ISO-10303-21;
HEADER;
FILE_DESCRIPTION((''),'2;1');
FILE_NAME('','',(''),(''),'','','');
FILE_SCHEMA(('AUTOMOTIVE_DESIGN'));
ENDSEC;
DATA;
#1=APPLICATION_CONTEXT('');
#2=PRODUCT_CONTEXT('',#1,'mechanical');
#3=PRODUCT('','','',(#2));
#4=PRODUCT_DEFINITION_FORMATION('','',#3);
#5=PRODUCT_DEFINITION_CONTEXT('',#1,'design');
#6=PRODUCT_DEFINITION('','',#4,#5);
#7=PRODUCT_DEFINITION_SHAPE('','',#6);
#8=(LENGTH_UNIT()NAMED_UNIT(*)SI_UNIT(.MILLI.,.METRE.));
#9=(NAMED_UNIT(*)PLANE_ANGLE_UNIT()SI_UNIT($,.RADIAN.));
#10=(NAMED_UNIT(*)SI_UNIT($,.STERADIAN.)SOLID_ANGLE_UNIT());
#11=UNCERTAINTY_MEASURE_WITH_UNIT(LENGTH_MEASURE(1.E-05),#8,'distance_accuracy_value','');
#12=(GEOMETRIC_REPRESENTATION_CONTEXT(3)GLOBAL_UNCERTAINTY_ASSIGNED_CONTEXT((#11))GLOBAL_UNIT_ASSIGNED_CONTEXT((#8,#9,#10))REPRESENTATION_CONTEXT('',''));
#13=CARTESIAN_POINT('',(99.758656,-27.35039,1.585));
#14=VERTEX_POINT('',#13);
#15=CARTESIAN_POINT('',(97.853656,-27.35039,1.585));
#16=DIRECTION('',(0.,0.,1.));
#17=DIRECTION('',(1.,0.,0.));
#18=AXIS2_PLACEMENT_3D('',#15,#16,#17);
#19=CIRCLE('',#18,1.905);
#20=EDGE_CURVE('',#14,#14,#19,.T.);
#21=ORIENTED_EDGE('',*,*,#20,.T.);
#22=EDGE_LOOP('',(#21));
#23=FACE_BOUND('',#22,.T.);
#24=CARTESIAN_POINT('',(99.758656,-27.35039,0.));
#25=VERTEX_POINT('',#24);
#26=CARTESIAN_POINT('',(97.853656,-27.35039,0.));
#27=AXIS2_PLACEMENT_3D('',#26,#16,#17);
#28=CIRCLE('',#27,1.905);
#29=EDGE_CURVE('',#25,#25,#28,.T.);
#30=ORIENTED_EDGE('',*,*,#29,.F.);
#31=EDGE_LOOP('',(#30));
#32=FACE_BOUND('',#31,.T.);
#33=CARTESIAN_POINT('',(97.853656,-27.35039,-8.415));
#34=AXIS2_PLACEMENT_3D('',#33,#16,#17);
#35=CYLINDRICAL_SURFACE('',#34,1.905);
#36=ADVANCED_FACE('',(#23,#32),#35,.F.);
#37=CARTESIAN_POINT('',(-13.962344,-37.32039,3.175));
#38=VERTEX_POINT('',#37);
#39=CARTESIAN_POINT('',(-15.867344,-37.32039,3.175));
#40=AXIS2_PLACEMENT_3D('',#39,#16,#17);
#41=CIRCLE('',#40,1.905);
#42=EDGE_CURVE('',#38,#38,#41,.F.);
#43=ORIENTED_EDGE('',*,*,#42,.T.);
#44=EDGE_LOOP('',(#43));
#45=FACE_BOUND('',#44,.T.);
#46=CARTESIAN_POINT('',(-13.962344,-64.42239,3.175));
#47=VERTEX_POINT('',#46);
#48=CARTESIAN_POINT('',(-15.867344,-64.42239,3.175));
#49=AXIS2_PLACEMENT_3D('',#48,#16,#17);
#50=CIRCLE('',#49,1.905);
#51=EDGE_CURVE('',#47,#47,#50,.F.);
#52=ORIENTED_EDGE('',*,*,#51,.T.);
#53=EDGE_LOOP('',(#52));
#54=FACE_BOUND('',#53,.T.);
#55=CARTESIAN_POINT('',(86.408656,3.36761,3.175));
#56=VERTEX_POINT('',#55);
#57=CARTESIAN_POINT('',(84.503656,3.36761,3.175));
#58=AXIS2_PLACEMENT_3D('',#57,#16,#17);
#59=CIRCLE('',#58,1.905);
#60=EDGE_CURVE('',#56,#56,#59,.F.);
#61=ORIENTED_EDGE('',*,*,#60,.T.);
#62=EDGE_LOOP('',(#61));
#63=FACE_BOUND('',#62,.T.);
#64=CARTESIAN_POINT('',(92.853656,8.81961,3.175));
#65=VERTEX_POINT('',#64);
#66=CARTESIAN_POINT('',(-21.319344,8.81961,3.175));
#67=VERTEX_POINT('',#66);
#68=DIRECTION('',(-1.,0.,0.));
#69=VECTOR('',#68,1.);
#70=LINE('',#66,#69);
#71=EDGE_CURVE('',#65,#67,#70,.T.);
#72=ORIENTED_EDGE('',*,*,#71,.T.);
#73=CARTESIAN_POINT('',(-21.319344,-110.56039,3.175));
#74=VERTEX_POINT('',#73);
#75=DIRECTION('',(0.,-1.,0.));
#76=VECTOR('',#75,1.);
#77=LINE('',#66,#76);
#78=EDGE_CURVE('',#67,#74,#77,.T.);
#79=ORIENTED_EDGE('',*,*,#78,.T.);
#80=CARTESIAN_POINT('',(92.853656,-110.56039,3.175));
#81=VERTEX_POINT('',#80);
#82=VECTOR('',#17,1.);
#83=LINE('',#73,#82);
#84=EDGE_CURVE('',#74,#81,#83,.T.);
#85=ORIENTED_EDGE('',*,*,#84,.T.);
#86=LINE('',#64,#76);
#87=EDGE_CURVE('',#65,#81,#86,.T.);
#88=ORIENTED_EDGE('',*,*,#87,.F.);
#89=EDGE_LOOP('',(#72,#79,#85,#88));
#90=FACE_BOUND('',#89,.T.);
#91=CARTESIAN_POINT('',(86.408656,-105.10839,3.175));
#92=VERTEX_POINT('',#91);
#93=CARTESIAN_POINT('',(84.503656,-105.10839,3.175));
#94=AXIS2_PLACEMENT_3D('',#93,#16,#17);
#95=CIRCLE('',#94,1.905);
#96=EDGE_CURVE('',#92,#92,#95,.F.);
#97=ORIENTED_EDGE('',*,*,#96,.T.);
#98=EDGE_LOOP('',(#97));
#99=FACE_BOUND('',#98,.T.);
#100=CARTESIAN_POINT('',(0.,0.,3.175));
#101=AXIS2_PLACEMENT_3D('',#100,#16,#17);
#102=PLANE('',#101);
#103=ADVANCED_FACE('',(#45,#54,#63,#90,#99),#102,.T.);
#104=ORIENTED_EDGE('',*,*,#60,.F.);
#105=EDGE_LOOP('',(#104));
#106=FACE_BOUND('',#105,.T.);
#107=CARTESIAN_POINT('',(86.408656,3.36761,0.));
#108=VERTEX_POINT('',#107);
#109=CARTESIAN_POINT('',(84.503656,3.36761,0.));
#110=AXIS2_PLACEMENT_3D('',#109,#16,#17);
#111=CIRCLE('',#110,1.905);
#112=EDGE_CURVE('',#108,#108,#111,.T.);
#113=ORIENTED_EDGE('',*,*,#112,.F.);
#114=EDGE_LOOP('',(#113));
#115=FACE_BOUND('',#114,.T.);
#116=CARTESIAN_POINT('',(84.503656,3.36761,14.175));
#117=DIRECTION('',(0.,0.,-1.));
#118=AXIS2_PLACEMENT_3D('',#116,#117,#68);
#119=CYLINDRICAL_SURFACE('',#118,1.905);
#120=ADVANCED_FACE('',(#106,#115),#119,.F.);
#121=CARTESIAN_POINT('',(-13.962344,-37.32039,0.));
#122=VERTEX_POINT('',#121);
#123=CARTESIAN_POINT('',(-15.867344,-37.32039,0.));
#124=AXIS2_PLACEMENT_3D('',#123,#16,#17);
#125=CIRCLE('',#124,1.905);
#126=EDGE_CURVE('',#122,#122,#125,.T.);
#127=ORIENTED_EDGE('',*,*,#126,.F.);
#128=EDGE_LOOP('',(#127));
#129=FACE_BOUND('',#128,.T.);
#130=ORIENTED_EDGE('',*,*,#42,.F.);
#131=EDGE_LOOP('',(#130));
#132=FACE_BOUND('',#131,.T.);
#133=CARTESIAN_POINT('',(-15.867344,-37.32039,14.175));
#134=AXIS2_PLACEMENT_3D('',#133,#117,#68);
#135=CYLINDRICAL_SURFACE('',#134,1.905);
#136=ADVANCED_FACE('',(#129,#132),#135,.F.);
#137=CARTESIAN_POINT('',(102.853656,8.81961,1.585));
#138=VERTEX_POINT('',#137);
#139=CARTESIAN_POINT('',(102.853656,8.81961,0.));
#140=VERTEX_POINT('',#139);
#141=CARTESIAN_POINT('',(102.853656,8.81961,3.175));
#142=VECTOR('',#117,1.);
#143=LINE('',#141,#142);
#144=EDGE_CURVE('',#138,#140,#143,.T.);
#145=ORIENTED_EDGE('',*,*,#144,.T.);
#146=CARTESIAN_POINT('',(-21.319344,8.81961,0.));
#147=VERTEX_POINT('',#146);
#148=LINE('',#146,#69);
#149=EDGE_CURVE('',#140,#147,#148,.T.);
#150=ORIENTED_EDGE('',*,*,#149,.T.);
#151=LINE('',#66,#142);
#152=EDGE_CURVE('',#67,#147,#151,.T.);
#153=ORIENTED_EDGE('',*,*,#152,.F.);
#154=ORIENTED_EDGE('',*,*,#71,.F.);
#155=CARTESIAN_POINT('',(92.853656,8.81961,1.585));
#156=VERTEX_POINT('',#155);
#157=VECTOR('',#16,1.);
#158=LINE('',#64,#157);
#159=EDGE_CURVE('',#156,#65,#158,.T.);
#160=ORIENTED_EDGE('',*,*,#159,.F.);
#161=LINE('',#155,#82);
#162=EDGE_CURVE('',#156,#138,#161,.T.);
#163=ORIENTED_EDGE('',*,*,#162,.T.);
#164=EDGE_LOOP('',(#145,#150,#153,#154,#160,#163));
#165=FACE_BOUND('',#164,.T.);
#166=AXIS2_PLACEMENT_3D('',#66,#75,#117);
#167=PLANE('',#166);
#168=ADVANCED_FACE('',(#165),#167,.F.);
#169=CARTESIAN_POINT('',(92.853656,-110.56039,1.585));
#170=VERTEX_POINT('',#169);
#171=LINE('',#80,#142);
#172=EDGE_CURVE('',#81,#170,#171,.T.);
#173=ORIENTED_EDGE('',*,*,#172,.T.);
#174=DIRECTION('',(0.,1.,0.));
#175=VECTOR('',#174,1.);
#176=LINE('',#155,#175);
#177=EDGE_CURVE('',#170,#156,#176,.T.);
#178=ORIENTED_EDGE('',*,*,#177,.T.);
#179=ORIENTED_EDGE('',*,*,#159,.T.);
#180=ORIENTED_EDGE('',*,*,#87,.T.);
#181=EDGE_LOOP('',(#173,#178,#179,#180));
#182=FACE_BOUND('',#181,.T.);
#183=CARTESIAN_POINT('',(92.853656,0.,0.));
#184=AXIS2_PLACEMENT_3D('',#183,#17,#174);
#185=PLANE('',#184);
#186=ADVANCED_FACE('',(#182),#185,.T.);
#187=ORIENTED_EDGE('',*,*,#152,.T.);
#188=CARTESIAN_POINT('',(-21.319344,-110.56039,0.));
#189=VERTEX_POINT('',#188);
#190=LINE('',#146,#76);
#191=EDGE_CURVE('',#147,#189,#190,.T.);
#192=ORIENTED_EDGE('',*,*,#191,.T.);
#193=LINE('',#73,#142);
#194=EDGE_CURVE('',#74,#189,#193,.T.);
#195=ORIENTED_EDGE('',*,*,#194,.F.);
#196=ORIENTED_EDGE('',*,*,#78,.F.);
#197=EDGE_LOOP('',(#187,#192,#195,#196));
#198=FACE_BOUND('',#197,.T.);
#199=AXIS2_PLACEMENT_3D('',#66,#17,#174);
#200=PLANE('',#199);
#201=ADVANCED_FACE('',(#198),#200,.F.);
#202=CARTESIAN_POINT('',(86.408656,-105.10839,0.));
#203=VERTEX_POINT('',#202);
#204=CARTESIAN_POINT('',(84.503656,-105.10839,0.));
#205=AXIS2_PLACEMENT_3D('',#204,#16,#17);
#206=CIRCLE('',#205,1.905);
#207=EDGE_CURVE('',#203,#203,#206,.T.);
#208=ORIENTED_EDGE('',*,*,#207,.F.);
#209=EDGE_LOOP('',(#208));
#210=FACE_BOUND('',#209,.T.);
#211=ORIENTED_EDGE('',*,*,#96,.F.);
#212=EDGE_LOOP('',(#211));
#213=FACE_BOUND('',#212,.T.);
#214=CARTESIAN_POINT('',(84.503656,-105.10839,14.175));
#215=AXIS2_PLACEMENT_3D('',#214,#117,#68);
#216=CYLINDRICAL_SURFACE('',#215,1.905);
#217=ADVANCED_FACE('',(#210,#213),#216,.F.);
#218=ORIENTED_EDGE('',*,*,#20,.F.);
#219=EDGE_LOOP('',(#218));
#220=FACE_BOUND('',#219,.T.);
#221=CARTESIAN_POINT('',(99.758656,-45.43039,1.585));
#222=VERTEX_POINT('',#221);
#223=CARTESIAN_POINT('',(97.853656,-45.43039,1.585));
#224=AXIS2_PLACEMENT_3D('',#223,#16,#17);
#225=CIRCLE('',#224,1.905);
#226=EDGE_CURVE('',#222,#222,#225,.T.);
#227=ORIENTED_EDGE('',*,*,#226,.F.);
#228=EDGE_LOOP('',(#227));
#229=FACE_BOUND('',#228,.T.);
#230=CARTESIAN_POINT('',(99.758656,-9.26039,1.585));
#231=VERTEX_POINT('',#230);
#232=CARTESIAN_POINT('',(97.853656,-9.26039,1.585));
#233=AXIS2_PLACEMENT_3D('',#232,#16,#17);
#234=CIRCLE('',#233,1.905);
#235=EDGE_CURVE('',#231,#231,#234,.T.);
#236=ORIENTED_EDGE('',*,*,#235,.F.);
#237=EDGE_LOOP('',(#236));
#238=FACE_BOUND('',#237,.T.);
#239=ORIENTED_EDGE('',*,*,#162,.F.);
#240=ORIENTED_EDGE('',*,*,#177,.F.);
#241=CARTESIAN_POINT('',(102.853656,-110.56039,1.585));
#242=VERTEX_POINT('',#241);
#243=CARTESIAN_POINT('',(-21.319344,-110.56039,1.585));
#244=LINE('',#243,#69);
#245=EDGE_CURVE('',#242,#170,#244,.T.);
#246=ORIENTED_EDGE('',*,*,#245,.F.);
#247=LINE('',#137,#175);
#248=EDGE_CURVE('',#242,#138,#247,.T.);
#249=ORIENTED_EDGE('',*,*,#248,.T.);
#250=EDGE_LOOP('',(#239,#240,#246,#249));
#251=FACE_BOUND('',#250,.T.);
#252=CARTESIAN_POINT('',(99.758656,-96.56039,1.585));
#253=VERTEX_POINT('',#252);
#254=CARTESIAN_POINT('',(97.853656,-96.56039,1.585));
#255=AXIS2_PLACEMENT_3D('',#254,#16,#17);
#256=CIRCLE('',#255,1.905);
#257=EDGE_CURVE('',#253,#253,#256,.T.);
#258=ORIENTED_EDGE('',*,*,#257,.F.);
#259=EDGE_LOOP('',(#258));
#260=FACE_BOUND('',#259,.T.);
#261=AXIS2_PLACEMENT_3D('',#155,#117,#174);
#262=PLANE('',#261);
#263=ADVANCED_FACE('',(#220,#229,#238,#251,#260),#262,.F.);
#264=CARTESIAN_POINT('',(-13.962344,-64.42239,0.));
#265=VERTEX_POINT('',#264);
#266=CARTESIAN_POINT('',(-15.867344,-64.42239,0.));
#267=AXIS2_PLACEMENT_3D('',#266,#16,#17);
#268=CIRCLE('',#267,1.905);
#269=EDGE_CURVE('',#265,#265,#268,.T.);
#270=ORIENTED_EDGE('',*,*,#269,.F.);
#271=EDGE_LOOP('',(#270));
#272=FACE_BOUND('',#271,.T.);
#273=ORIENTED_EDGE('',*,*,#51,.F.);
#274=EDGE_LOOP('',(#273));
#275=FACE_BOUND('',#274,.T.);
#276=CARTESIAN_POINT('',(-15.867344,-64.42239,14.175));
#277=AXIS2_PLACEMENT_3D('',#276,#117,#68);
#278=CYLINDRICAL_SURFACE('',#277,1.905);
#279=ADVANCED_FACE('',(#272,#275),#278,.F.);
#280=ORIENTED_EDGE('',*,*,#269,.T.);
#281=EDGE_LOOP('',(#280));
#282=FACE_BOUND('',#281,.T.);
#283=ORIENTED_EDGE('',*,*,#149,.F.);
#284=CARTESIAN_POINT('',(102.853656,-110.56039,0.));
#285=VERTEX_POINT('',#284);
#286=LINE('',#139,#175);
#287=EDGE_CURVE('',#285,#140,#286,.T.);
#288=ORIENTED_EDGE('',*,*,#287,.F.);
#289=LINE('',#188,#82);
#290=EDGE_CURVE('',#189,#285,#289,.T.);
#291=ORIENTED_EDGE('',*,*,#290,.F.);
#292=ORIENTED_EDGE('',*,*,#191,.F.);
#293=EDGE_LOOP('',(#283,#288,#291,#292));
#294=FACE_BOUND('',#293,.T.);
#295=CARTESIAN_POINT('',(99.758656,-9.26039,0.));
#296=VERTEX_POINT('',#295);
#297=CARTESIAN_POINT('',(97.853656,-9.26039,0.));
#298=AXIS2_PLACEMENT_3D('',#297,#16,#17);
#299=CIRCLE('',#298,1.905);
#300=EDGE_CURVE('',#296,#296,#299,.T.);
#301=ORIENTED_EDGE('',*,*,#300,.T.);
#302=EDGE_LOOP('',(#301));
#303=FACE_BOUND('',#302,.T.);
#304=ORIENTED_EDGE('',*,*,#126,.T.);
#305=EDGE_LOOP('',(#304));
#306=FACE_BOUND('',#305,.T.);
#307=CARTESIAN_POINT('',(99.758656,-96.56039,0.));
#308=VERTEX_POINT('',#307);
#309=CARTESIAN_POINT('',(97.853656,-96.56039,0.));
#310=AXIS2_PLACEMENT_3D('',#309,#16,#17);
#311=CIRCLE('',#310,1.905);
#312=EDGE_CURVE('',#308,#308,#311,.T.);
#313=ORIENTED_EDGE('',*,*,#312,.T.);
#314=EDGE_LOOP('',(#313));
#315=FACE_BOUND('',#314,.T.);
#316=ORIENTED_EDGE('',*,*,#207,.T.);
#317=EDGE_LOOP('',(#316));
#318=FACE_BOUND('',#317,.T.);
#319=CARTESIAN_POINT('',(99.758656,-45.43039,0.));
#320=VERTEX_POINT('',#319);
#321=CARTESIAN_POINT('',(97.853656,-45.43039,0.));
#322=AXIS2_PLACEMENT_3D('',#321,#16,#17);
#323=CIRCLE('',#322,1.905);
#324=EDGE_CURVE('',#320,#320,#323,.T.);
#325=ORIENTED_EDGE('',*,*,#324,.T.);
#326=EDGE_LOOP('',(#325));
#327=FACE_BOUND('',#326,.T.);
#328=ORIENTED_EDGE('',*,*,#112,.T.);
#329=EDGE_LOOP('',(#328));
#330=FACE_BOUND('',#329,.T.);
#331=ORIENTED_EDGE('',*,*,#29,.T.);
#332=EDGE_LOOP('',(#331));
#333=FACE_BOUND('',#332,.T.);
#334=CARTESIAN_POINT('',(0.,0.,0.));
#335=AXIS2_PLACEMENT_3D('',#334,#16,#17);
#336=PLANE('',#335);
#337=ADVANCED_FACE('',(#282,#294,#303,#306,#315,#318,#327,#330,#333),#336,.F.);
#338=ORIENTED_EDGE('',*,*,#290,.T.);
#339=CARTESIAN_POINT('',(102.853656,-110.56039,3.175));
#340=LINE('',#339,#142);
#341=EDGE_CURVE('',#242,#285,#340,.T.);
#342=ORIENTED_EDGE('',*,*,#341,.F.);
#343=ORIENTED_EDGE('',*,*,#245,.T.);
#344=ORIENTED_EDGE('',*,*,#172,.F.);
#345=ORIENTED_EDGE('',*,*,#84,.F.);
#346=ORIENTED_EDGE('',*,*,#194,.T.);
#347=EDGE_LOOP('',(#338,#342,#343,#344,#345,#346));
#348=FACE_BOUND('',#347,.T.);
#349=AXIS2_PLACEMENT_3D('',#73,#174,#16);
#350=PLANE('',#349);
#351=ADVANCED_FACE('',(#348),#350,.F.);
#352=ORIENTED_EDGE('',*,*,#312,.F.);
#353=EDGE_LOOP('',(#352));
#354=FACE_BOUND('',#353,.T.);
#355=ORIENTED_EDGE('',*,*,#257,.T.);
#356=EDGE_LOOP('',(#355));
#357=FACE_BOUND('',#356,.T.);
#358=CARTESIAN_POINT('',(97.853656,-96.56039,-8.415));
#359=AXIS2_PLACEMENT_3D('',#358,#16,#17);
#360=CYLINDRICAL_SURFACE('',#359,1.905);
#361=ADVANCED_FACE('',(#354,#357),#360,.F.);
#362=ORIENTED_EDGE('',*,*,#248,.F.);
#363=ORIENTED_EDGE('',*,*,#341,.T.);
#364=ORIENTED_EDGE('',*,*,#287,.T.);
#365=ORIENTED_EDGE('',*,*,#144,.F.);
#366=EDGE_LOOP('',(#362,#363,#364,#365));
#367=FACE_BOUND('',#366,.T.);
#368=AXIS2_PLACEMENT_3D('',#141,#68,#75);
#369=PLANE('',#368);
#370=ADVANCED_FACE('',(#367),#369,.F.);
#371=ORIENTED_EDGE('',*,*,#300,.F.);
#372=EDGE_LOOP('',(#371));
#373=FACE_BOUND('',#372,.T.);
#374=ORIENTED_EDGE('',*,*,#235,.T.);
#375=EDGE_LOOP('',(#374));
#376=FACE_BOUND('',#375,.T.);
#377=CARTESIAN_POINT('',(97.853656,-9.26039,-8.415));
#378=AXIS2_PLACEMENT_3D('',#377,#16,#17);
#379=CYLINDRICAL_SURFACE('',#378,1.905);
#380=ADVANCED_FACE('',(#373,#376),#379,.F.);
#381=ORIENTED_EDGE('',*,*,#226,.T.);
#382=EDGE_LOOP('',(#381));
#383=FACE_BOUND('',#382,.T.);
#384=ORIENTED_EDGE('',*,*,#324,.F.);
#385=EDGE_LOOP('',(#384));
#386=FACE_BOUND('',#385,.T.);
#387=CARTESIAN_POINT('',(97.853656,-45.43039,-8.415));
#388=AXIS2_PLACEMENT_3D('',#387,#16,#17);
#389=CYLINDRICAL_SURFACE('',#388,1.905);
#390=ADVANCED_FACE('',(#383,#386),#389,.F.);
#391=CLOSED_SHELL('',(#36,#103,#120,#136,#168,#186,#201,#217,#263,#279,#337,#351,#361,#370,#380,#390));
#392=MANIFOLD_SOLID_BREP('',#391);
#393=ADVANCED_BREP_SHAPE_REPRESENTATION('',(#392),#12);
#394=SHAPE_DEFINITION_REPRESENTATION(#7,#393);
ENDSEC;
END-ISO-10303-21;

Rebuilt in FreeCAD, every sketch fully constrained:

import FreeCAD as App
import Part
import Sketcher
Q = App.Units.Quantity

doc = App.newDocument("Part")
body = doc.addObject("PartDesign::Body", "Body")

# Sketch on XY plane
sketch1 = doc.addObject("Sketcher::SketchObject", "Sketch")
body.addObject(sketch1)
sketch1.AttachmentSupport = (doc.XY_Plane, [""])
sketch1.MapMode = "FlatFace"
sketch1.addGeometry([
    Part.LineSegment(App.Vector(-21, 9, 0), App.Vector(-21, -111, 0)),
    Part.LineSegment(App.Vector(-21, -111, 0), App.Vector(103, -111, 0)),
    Part.LineSegment(App.Vector(103, -111, 0), App.Vector(103, 9, 0)),
    Part.LineSegment(App.Vector(103, 9, 0), App.Vector(-21, 9, 0)),
], False)
sketch1.addConstraint([
    Sketcher.Constraint("Coincident", 0, 2, 1, 1),
    Sketcher.Constraint("Coincident", 1, 2, 2, 1),
    Sketcher.Constraint("Coincident", 2, 2, 3, 1),
    Sketcher.Constraint("Coincident", 3, 2, 0, 1),
    Sketcher.Constraint("Vertical", 0),
    Sketcher.Constraint("Horizontal", 1),
    Sketcher.Constraint("Vertical", 2),
    Sketcher.Constraint("Horizontal", 3),
    Sketcher.Constraint("DistanceY", 0, 2, 0, 1, Q("4.7 in")),
    Sketcher.Constraint("DistanceX", 1, 1, 1, 2, Q("124.173 mm")),
    Sketcher.Constraint("DistanceY", 0, 2, -1, 1, Q("110.56039 mm")),
    Sketcher.Constraint("DistanceX", 0, 2, -1, 1, Q("21.319344 mm")),
])
pad1 = doc.addObject("PartDesign::Pad", "Pad")
body.addObject(pad1)
pad1.Profile = sketch1
pad1.Length = Q("0.125 in")

# Sketch on XY plane
sketch2 = doc.addObject("Sketcher::SketchObject", "Sketch001")
body.addObject(sketch2)
sketch2.AttachmentSupport = (doc.XY_Plane, [""])
sketch2.MapMode = "FlatFace"
sketch2.addGeometry([
    Part.Circle(App.Vector(-15.9, -37.3, 0), App.Vector(0, 0, 1), 1.9),
    Part.Circle(App.Vector(-15.9, -64.4, 0), App.Vector(0, 0, 1), 1.9),
    Part.Circle(App.Vector(84.5, 3.4, 0), App.Vector(0, 0, 1), 1.9),
    Part.Circle(App.Vector(84.5, -105.1, 0), App.Vector(0, 0, 1), 1.9),
], False)
sketch2.addConstraint([
    Sketcher.Constraint("Equal", 0, 1),
    Sketcher.Constraint("Equal", 1, 2),
    Sketcher.Constraint("Equal", 2, 3),
    Sketcher.Constraint("Vertical", 0, 3, 1, 3),
    Sketcher.Constraint("Vertical", 2, 3, 3, 3),
    Sketcher.Constraint("Diameter", 0, Q("0.15 in")),
    Sketcher.Constraint("DistanceY", 1, 3, 0, 3, Q("27.102 mm")),
    Sketcher.Constraint("DistanceX", 0, 3, 2, 3, Q("100.371 mm")),
    Sketcher.Constraint("DistanceY", 0, 3, 2, 3, Q("40.688 mm")),
    Sketcher.Constraint("DistanceY", 3, 3, 1, 3, Q("40.686 mm")),
    Sketcher.Constraint("DistanceY", 0, 3, -1, 1, Q("37.32039 mm")),
    Sketcher.Constraint("DistanceX", 0, 3, -1, 1, Q("15.867344 mm")),
])
pocket1 = doc.addObject("PartDesign::Pocket", "Pocket")
body.addObject(pocket1)
pocket1.Profile = sketch2
pocket1.Length = 14.175
pocket1.Reversed = True

# Sketch on YZ plane
sketch3 = doc.addObject("Sketcher::SketchObject", "Sketch002")
body.addObject(sketch3)
sketch3.AttachmentSupport = (doc.YZ_Plane, [""])
sketch3.MapMode = "FlatFace"
sketch3.AttachmentOffset = App.Placement(App.Vector(0, 0, 102.853656), App.Rotation())
sketch3.addGeometry([
    Part.LineSegment(App.Vector(8.8, 3.2, 0), App.Vector(-111.2, 3.2, 0)),
    Part.LineSegment(App.Vector(-111.2, 3.2, 0), App.Vector(-111.2, 1.6, 0)),
    Part.LineSegment(App.Vector(-111.2, 1.6, 0), App.Vector(8.8, 1.6, 0)),
    Part.LineSegment(App.Vector(8.8, 1.6, 0), App.Vector(8.8, 3.2, 0)),
], False)
sketch3.addConstraint([
    Sketcher.Constraint("Coincident", 0, 2, 1, 1),
    Sketcher.Constraint("Coincident", 1, 2, 2, 1),
    Sketcher.Constraint("Coincident", 2, 2, 3, 1),
    Sketcher.Constraint("Coincident", 3, 2, 0, 1),
    Sketcher.Constraint("Horizontal", 0),
    Sketcher.Constraint("Vertical", 1),
    Sketcher.Constraint("Horizontal", 2),
    Sketcher.Constraint("Vertical", 3),
    Sketcher.Constraint("DistanceY", -1, 1, 0, 2, Q("0.125 in")),
    Sketcher.Constraint("DistanceX", 0, 2, 0, 1, Q("120 mm")),
    Sketcher.Constraint("DistanceY", 1, 2, 1, 1, Q("1.59 mm")),
    Sketcher.Constraint("DistanceX", 0, 2, -1, 1, Q("111.18039 mm")),
])
pocket2 = doc.addObject("PartDesign::Pocket", "Pocket001")
body.addObject(pocket2)
pocket2.Profile = sketch3
pocket2.Length = 10

# Sketch on XY plane
sketch4 = doc.addObject("Sketcher::SketchObject", "Sketch003")
body.addObject(sketch4)
sketch4.AttachmentSupport = (doc.XY_Plane, [""])
sketch4.MapMode = "FlatFace"
sketch4.AttachmentOffset = App.Placement(App.Vector(0, 0, 1.585), App.Rotation())
sketch4.addGeometry([
    Part.Circle(App.Vector(97.9, -9.3, 0), App.Vector(0, 0, 1), 1.9),
    Part.Circle(App.Vector(97.9, -27.4, 0), App.Vector(0, 0, 1), 1.9),
    Part.Circle(App.Vector(97.9, -45.4, 0), App.Vector(0, 0, 1), 1.9),
    Part.Circle(App.Vector(97.9, -96.6, 0), App.Vector(0, 0, 1), 1.9),
], False)
sketch4.addConstraint([
    Sketcher.Constraint("Equal", 0, 1),
    Sketcher.Constraint("Equal", 1, 2),
    Sketcher.Constraint("Equal", 2, 3),
    Sketcher.Constraint("Vertical", 0, 3, 1, 3),
    Sketcher.Constraint("Vertical", 1, 3, 2, 3),
    Sketcher.Constraint("Vertical", 2, 3, 3, 3),
    Sketcher.Constraint("Diameter", 0, Q("0.15 in")),
    Sketcher.Constraint("DistanceY", 1, 3, 0, 3, Q("18.09 mm")),
    Sketcher.Constraint("DistanceY", 2, 3, 1, 3, Q("18.08 mm")),
    Sketcher.Constraint("DistanceY", 3, 3, 2, 3, Q("51.130001 mm")),
    Sketcher.Constraint("DistanceY", 0, 3, -1, 1, Q("9.26039 mm")),
    Sketcher.Constraint("DistanceX", -1, 1, 0, 3, Q("97.853656 mm")),
])
pocket3 = doc.addObject("PartDesign::Pocket", "Pocket002")
body.addObject(pocket3)
pocket3.Profile = sketch4
pocket3.Length = 10

doc.recompute()
